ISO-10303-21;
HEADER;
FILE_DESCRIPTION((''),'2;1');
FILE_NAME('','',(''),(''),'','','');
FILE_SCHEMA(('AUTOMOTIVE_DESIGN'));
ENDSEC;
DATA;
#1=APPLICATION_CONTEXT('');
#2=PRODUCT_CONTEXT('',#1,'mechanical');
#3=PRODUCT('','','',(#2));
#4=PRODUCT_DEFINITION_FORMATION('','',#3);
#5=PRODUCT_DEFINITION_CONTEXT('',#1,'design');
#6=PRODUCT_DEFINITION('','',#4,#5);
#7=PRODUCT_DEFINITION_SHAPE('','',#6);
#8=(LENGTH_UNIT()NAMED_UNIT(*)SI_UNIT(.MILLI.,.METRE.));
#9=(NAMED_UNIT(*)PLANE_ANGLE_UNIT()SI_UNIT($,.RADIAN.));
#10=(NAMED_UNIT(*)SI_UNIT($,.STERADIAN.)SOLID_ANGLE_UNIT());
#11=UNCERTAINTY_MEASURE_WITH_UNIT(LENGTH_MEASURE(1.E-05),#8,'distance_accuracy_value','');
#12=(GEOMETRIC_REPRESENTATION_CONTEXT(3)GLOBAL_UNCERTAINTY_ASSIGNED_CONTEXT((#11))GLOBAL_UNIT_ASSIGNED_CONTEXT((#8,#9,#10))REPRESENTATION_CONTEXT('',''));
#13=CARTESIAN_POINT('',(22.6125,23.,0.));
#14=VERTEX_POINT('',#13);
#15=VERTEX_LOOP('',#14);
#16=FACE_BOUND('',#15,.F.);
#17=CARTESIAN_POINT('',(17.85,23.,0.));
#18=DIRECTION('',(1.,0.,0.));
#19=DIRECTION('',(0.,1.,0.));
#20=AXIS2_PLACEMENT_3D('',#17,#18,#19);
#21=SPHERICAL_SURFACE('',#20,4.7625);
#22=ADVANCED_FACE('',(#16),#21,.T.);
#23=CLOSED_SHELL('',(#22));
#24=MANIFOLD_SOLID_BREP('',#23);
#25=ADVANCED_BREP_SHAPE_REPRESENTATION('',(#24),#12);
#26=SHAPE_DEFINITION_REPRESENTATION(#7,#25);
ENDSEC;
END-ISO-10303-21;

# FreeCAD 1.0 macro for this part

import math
import FreeCAD as App
import Part
import Sketcher
Q = App.Units.Quantity

doc = App.newDocument("Part")
body = doc.addObject("PartDesign::Body", "Body")

# Sketch on XY plane
sketch1 = body.newObject("Sketcher::SketchObject", "Sketch")
sketch1.AttachmentSupport = (doc.getObject("XY_Plane"), [""])
sketch1.MapMode = "FlatFace"
sketch1.addGeometry(Part.ArcOfCircle(Part.Circle(App.Vector(17.85, 23, 0), App.Vector(0, 0, 1), 4.7625), math.radians(0), math.radians(180)), False)
sketch1.addGeometry(Part.LineSegment(App.Vector(13.0875, 23, 0), App.Vector(22.6125, 23, 0)), False)
sketch1.addGeometry(Part.LineSegment(App.Vector(22.6125, 23, 0), App.Vector(13.0875, 23, 0)), True)  # axis
sketch1.addConstraint(Sketcher.Constraint("Coincident", 0, 1, 1, 2))
sketch1.addConstraint(Sketcher.Constraint("Coincident", 1, 1, 0, 2))
sketch1.addConstraint(Sketcher.Constraint("Horizontal", 1))
sketch1.addConstraint(Sketcher.Constraint("Horizontal", 2))
sketch1.addConstraint(Sketcher.Constraint("Coincident", 2, 1, 0, 1))
sketch1.addConstraint(Sketcher.Constraint("Equal", 1, 2))
sketch1.addConstraint(Sketcher.Constraint("Radius", 0, Q("0.1875 in")))
sketch1.addConstraint(Sketcher.Constraint("DistanceY", -1, 1, 0, 3, Q("0.9055 in")))
sketch1.addConstraint(Sketcher.Constraint("DistanceY", -1, 1, 0, 1, Q("0.9055 in")))
sketch1.addConstraint(Sketcher.Constraint("DistanceX", -1, 1, 0, 3, 17.85))
revolution = body.newObject("PartDesign::Revolution", "Revolution")
revolution.Profile = sketch1
revolution.ReferenceAxis = (sketch1, ["Axis0"])
revolution.Angle = 360

doc.recompute()
